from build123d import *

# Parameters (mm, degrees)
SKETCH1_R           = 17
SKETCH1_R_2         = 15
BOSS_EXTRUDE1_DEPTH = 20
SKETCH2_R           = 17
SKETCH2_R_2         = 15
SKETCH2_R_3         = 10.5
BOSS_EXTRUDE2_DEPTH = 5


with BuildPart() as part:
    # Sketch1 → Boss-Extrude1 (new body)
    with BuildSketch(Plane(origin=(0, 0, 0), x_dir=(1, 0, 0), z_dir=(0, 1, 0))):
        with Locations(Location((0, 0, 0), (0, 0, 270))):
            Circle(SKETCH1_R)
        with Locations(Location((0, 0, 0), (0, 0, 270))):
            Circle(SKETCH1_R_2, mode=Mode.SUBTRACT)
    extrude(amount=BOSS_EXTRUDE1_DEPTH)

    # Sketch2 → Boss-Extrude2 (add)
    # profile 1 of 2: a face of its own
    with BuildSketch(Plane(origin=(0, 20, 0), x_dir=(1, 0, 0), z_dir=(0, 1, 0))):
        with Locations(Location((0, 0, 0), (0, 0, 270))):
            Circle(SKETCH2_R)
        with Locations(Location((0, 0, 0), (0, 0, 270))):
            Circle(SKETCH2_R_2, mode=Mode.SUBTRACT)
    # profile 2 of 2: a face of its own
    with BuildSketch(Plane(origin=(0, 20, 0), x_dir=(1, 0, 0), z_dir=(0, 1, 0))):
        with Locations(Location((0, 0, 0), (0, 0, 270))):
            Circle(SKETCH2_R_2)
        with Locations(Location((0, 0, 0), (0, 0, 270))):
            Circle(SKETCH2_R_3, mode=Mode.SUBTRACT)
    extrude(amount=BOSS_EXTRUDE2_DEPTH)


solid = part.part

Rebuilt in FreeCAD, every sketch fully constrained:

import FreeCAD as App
import Part
import Sketcher
from FreeCAD import Vector

doc = App.newDocument("Part")
body = doc.addObject("PartDesign::Body", "Body")

# Sketch on XZ plane
sketch1 = body.newObject("Sketcher::SketchObject", "Sketch")
sketch1.AttachmentSupport = (doc.getObject("XZ_Plane"), [""])
sketch1.MapMode = "FlatFace"
sketch1.addGeometry([
    Part.Circle(Vector(0, 0, 0), Vector(0, 0, 1), 17),
    Part.Circle(Vector(0, 0, 0), Vector(0, 0, 1), 15),
], False)
sketch1.addConstraint([
    Sketcher.Constraint("Coincident", 0, 3, -1, 1),
    Sketcher.Constraint("Coincident", 1, 3, -1, 1),
    Sketcher.Constraint("Diameter", 0, 34.0),
    Sketcher.Constraint("Diameter", 1, 30.0),
])
pad1 = body.newObject("PartDesign::Pad", "Pad")
pad1.Profile = sketch1
pad1.Length = 20
pad1.Reversed = True

# Sketch on XZ plane
sketch2 = body.newObject("Sketcher::SketchObject", "Sketch001")
sketch2.AttachmentSupport = (doc.getObject("XZ_Plane"), [""])
sketch2.MapMode = "FlatFace"
sketch2.AttachmentOffset = App.Placement(Vector(0, 0, -20), App.Rotation())
sketch2.addGeometry([
    Part.Circle(Vector(0, 0, 0), Vector(0, 0, 1), 17),
    Part.Circle(Vector(0, 0, 0), Vector(0, 0, 1), 10.5),
], False)
sketch2.addConstraint([
    Sketcher.Constraint("Coincident", 0, 3, -1, 1),
    Sketcher.Constraint("Coincident", 1, 3, -1, 1),
    Sketcher.Constraint("Diameter", 0, 34.0),
    Sketcher.Constraint("Diameter", 1, 21.0),
])
pad2 = body.newObject("PartDesign::Pad", "Pad001")
pad2.Profile = sketch2
pad2.Length = 5
pad2.Reversed = True

doc.recompute()
